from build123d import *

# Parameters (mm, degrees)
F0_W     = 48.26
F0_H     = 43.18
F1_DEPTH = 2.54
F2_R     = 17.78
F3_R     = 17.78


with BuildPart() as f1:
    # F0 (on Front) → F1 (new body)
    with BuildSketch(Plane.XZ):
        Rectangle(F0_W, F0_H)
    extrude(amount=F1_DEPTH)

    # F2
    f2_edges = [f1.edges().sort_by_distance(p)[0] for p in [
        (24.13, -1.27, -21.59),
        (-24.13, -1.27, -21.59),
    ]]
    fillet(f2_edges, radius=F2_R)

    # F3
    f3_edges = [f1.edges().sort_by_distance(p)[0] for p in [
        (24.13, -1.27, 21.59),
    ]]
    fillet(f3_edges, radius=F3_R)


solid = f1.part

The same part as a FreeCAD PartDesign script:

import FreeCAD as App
import Part
import Sketcher
Q = App.Units.Quantity


def edges_at(feature, points):
    """Names of the edges that pass closest to the given points."""
    edges = feature.Shape.Edges
    near = lambda p: min(range(len(edges)), key=lambda i: edges[i].distToShape(Part.Vertex(*p))[0])
    return sorted({f"Edge{near(p) + 1}" for p in points})

doc = App.newDocument("Part")
params = doc.addObject("Spreadsheet::Sheet", "Params")
for row, (alias, value) in enumerate([
    ("sketch1_width", "1.9 in"),
    ("sketch1_height", "1.7 in"),
    ("pad1_length", "0.1 in"),
    ("fillet_radius", "0.7 in"),
    ("fillet2_radius", "0.7 in"),
], start=1):
    params.set(f"A{row}", alias)
    params.set(f"B{row}", "=" + value)
    params.setAlias(f"B{row}", alias)

body = doc.addObject("PartDesign::Body", "Body")

# Sketch on XZ plane
sketch1 = body.newObject("Sketcher::SketchObject", "Sketch")
sketch1.AttachmentSupport = (doc.getObject("XZ_Plane"), [""])
sketch1.MapMode = "FlatFace"
sketch1.addGeometry([
    Part.LineSegment(App.Vector(-24, 22, 0), App.Vector(-24, -22, 0)),
    Part.LineSegment(App.Vector(-24, -22, 0), App.Vector(24, -22, 0)),
    Part.LineSegment(App.Vector(24, -22, 0), App.Vector(24, 22, 0)),
    Part.LineSegment(App.Vector(24, 22, 0), App.Vector(-24, 22, 0)),
], False)
sketch1.addConstraint([
    Sketcher.Constraint("Coincident", 0, 2, 1, 1),
    Sketcher.Constraint("Coincident", 1, 2, 2, 1),
    Sketcher.Constraint("Coincident", 2, 2, 3, 1),
    Sketcher.Constraint("Coincident", 3, 2, 0, 1),
    Sketcher.Constraint("Vertical", 0),
    Sketcher.Constraint("Horizontal", 1),
    Sketcher.Constraint("Vertical", 2),
    Sketcher.Constraint("Horizontal", 3),
    Sketcher.Constraint("Symmetric", 0, 2, 2, 2, -1, 1),
    Sketcher.Constraint("DistanceX", 1, 1, 1, 2, Q("1.9 in")),
    Sketcher.Constraint("DistanceY", 0, 2, 0, 1, Q("1.7 in")),
])
sketch1.setExpression("Constraints[9]", "Params.sketch1_width")
sketch1.setExpression("Constraints[10]", "Params.sketch1_height")
pad1 = body.newObject("PartDesign::Pad", "Pad")
pad1.Profile = sketch1
pad1.setExpression("Length", "Params.pad1_length")
doc.recompute()

fillet = body.newObject("PartDesign::Fillet", "Fillet")
fillet.Base = (pad1, edges_at(pad1, [(24.13, -1.27, -21.59), (-24.13, -1.27, -21.59)]))
fillet.setExpression("Radius", "Params.fillet_radius")
doc.recompute()

fillet2 = body.newObject("PartDesign::Fillet", "Fillet001")
fillet2.Base = (fillet, edges_at(fillet, [(24.13, -1.27, 21.59)]))
fillet2.setExpression("Radius", "Params.fillet2_radius")

doc.recompute()
